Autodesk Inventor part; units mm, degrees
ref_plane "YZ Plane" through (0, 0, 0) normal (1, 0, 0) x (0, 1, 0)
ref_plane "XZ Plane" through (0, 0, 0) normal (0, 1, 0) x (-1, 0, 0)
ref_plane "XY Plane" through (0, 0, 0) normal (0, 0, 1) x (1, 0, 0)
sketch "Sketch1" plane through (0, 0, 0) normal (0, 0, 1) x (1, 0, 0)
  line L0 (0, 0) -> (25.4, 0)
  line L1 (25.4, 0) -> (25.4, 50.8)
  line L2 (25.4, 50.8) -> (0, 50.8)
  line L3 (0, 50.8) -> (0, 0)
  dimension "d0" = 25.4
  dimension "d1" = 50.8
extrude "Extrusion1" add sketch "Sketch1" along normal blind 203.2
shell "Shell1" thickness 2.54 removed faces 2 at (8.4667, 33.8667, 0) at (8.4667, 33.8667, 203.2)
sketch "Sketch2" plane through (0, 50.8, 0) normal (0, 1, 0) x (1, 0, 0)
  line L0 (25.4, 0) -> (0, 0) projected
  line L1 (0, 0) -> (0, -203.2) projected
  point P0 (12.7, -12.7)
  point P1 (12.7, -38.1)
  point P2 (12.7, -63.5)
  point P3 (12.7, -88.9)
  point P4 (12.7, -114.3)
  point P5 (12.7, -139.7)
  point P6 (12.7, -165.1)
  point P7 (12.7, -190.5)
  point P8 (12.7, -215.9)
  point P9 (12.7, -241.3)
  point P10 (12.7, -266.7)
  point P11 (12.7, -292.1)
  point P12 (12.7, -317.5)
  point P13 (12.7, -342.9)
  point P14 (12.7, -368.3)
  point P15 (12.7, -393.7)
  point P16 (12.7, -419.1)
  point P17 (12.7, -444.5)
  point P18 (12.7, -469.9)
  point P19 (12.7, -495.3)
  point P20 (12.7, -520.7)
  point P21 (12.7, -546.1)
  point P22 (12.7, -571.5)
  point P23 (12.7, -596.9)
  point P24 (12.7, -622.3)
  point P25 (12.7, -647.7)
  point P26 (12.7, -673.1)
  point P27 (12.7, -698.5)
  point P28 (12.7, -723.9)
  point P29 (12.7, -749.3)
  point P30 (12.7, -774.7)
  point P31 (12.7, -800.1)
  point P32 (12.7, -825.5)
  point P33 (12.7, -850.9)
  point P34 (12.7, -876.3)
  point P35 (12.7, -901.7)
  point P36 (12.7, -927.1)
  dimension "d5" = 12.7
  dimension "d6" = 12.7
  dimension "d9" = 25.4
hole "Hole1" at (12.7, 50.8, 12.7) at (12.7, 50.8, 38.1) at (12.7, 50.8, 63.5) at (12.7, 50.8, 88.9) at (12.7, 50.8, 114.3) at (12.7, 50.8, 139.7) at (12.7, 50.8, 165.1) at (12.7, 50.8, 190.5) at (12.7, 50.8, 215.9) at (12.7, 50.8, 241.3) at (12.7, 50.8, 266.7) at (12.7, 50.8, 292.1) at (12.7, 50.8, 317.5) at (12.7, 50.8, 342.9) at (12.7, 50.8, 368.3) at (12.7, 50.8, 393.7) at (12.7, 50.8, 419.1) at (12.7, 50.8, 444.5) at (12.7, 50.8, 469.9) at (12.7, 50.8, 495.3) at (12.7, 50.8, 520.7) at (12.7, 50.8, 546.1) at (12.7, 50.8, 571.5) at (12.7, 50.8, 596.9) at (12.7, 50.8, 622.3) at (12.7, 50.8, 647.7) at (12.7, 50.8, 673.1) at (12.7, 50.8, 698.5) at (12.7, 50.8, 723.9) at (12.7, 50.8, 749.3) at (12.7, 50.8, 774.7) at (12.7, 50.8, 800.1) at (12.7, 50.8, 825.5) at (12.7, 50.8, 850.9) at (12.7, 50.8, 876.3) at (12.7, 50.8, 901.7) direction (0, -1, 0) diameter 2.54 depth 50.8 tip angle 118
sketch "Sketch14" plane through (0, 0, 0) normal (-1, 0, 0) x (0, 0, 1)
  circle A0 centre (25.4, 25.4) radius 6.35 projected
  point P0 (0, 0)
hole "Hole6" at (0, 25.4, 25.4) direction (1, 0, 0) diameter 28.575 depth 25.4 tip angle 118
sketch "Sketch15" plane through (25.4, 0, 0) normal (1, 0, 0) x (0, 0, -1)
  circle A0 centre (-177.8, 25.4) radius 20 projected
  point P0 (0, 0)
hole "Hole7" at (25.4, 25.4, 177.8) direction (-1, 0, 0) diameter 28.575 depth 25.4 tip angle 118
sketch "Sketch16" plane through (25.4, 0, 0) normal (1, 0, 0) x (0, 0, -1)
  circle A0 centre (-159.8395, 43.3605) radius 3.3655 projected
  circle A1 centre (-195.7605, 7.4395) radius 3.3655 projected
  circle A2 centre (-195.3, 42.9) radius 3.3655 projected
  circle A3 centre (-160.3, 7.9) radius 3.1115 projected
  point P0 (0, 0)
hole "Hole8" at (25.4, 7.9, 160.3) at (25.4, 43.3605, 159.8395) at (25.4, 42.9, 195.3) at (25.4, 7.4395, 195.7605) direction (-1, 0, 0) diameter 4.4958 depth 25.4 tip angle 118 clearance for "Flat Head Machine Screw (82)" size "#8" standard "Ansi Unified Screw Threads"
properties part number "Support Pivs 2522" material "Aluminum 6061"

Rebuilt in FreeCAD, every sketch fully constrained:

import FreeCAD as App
import Part
import Sketcher
Q = App.Units.Quantity


def faces_at(feature, points):
    """Names of the faces that lie closest to the given points."""
    faces = feature.Shape.Faces
    near = lambda p: min(range(len(faces)), key=lambda i: faces[i].distToShape(Part.Vertex(*p))[0])
    return sorted({f"Face{near(p) + 1}" for p in points})


def add_polygon(sketch, points):
    """Adds a closed chain of lines whose ends are joined by coincident constraints."""
    first, n = sketch.GeometryCount, len(points)
    for a, b in zip(points, points[1:] + points[:1]):
        sketch.addGeometry(Part.LineSegment(App.Vector(*a, 0), App.Vector(*b, 0)), False)
    for i in range(n):
        sketch.addConstraint(Sketcher.Constraint("Coincident", first + i, 2, first + (i + 1) % n, 1))

doc = App.newDocument("Part")
body = doc.addObject("PartDesign::Body", "Body")

sketch1 = body.newObject("Sketcher::SketchObject", "Sketch")
sketch1.AttachmentSupport = (doc.getObject("XY_Plane"), [""])
sketch1.MapMode = "FlatFace"
add_polygon(sketch1, [(0, 51), (0, 0), (25, 0), (25, 51)])
sketch1.addConstraint([
    Sketcher.Constraint("Vertical", 0),
    Sketcher.Constraint("Horizontal", 1),
    Sketcher.Constraint("Vertical", 2),
    Sketcher.Constraint("Horizontal", 3),
    Sketcher.Constraint("Coincident", 0, 2, -1, 1),
    Sketcher.Constraint("DistanceX", 1, 1, 1, 2, Q("1 in")),
    Sketcher.Constraint("DistanceY", 0, 2, 0, 1, Q("2 in")),
])
pad1 = body.newObject("PartDesign::Pad", "Pad")
pad1.Profile = sketch1
pad1.Length = Q("8 in")
doc.recompute()

thickness = body.newObject("PartDesign::Thickness", "Thickness")
thickness.Base = (pad1, faces_at(pad1, [(8.467, 33.867, 0), (8.467, 33.867, 203.2)]))
thickness.Value = Q("0.1 in")
thickness.Reversed = True
thickness.Join = "Intersection"

sketch2 = body.newObject("Sketcher::SketchObject", "Sketch001")
sketch2.AttachmentSupport = (doc.getObject("XZ_Plane"), [""])
sketch2.MapMode = "FlatFace"
sketch2.AttachmentOffset = App.Placement(App.Vector(0, 0, -2 * 25.4), App.Rotation())
sketch2.addGeometry([
    Part.Circle(App.Vector(12.7, 12.7, 0), App.Vector(0, 0, 1), 1.3),
    Part.Circle(App.Vector(12.7, 38.1, 0), App.Vector(0, 0, 1), 1.3),
    Part.Circle(App.Vector(12.7, 63.5, 0), App.Vector(0, 0, 1), 1.3),
    Part.Circle(App.Vector(12.7, 88.9, 0), App.Vector(0, 0, 1), 1.3),
    Part.Circle(App.Vector(12.7, 114.3, 0), App.Vector(0, 0, 1), 1.3),
    Part.Circle(App.Vector(12.7, 139.7, 0), App.Vector(0, 0, 1), 1.3),
    Part.Circle(App.Vector(12.7, 165.1, 0), App.Vector(0, 0, 1), 1.3),
    Part.Circle(App.Vector(12.7, 190.5, 0), App.Vector(0, 0, 1), 1.3),
    Part.Circle(App.Vector(12.7, 215.9, 0), App.Vector(0, 0, 1), 1.3),
    Part.Circle(App.Vector(12.7, 241.3, 0), App.Vector(0, 0, 1), 1.3),
    Part.Circle(App.Vector(12.7, 266.7, 0), App.Vector(0, 0, 1), 1.3),
    Part.Circle(App.Vector(12.7, 292.1, 0), App.Vector(0, 0, 1), 1.3),
    Part.Circle(App.Vector(12.7, 317.5, 0), App.Vector(0, 0, 1), 1.3),
    Part.Circle(App.Vector(12.7, 342.9, 0), App.Vector(0, 0, 1), 1.3),
    Part.Circle(App.Vector(12.7, 368.3, 0), App.Vector(0, 0, 1), 1.3),
    Part.Circle(App.Vector(12.7, 393.7, 0), App.Vector(0, 0, 1), 1.3),
    Part.Circle(App.Vector(12.7, 419.1, 0), App.Vector(0, 0, 1), 1.3),
    Part.Circle(App.Vector(12.7, 444.5, 0), App.Vector(0, 0, 1), 1.3),
    Part.Circle(App.Vector(12.7, 469.9, 0), App.Vector(0, 0, 1), 1.3),
    Part.Circle(App.Vector(12.7, 495.3, 0), App.Vector(0, 0, 1), 1.3),
    Part.Circle(App.Vector(12.7, 520.7, 0), App.Vector(0, 0, 1), 1.3),
    Part.Circle(App.Vector(12.7, 546.1, 0), App.Vector(0, 0, 1), 1.3),
    Part.Circle(App.Vector(12.7, 571.5, 0), App.Vector(0, 0, 1), 1.3),
    Part.Circle(App.Vector(12.7, 596.9, 0), App.Vector(0, 0, 1), 1.3),
    Part.Circle(App.Vector(12.7, 622.3, 0), App.Vector(0, 0, 1), 1.3),
    Part.Circle(App.Vector(12.7, 647.7, 0), App.Vector(0, 0, 1), 1.3),
    Part.Circle(App.Vector(12.7, 673.1, 0), App.Vector(0, 0, 1), 1.3),
    Part.Circle(App.Vector(12.7, 698.5, 0), App.Vector(0, 0, 1), 1.3),
    Part.Circle(App.Vector(12.7, 723.9, 0), App.Vector(0, 0, 1), 1.3),
    Part.Circle(App.Vector(12.7, 749.3, 0), App.Vector(0, 0, 1), 1.3),
    Part.Circle(App.Vector(12.7, 774.7, 0), App.Vector(0, 0, 1), 1.3),
    Part.Circle(App.Vector(12.7, 800.1, 0), App.Vector(0, 0, 1), 1.3),
    Part.Circle(App.Vector(12.7, 825.5, 0), App.Vector(0, 0, 1), 1.3),
    Part.Circle(App.Vector(12.7, 850.9, 0), App.Vector(0, 0, 1), 1.3),
    Part.Circle(App.Vector(12.7, 876.3, 0), App.Vector(0, 0, 1), 1.3),
    Part.Circle(App.Vector(12.7, 901.7, 0), App.Vector(0, 0, 1), 1.3),
], False)
sketch2.addConstraint([
    Sketcher.Constraint("Equal", 0, 1),
    Sketcher.Constraint("Equal", 1, 2),
    Sketcher.Constraint("Equal", 2, 3),
    Sketcher.Constraint("Equal", 3, 4),
    Sketcher.Constraint("Equal", 4, 5),
    Sketcher.Constraint("Equal", 5, 6),
    Sketcher.Constraint("Equal", 6, 7),
    Sketcher.Constraint("Equal", 7, 8),
    Sketcher.Constraint("Equal", 8, 9),
    Sketcher.Constraint("Equal", 9, 10),
    Sketcher.Constraint("Equal", 10, 11),
    Sketcher.Constraint("Equal", 11, 12),
    Sketcher.Constraint("Equal", 12, 13),
    Sketcher.Constraint("Equal", 13, 14),
    Sketcher.Constraint("Equal", 14, 15),
    Sketcher.Constraint("Equal", 15, 16),
    Sketcher.Constraint("Equal", 16, 17),
    Sketcher.Constraint("Equal", 17, 18),
    Sketcher.Constraint("Equal", 18, 19),
    Sketcher.Constraint("Equal", 19, 20),
    Sketcher.Constraint("Equal", 20, 21),
    Sketcher.Constraint("Equal", 21, 22),
    Sketcher.Constraint("Equal", 22, 23),
    Sketcher.Constraint("Equal", 23, 24),
    Sketcher.Constraint("Equal", 24, 25),
    Sketcher.Constraint("Equal", 25, 26),
    Sketcher.Constraint("Equal", 26, 27),
    Sketcher.Constraint("Equal", 27, 28),
    Sketcher.Constraint("Equal", 28, 29),
    Sketcher.Constraint("Equal", 29, 30),
    Sketcher.Constraint("Equal", 30, 31),
    Sketcher.Constraint("Equal", 31, 32),
    Sketcher.Constraint("Equal", 32, 33),
    Sketcher.Constraint("Equal", 33, 34),
    Sketcher.Constraint("Equal", 34, 35),
    Sketcher.Constraint("Vertical", 0, 3, 1, 3),
    Sketcher.Constraint("Vertical", 1, 3, 2, 3),
    Sketcher.Constraint("Vertical", 2, 3, 3, 3),
    Sketcher.Constraint("Vertical", 3, 3, 4, 3),
    Sketcher.Constraint("Vertical", 4, 3, 5, 3),
    Sketcher.Constraint("Vertical", 5, 3, 6, 3),
    Sketcher.Constraint("Vertical", 6, 3, 7, 3),
    Sketcher.Constraint("Vertical", 7, 3, 8, 3),
    Sketcher.Constraint("Vertical", 8, 3, 9, 3),
    Sketcher.Constraint("Vertical", 9, 3, 10, 3),
    Sketcher.Constraint("Vertical", 10, 3, 11, 3),
    Sketcher.Constraint("Vertical", 11, 3, 12, 3),
    Sketcher.Constraint("Vertical", 12, 3, 13, 3),
    Sketcher.Constraint("Vertical", 13, 3, 14, 3),
    Sketcher.Constraint("Vertical", 14, 3, 15, 3),
    Sketcher.Constraint("Vertical", 15, 3, 16, 3),
    Sketcher.Constraint("Vertical", 16, 3, 17, 3),
    Sketcher.Constraint("Vertical", 17, 3, 18, 3),
    Sketcher.Constraint("Vertical", 18, 3, 19, 3),
    Sketcher.Constraint("Vertical", 19, 3, 20, 3),
    Sketcher.Constraint("Vertical", 20, 3, 21, 3),
    Sketcher.Constraint("Vertical", 21, 3, 22, 3),
    Sketcher.Constraint("Vertical", 22, 3, 23, 3),
    Sketcher.Constraint("Vertical", 23, 3, 24, 3),
    Sketcher.Constraint("Vertical", 24, 3, 25, 3),
    Sketcher.Constraint("Vertical", 25, 3, 26, 3),
    Sketcher.Constraint("Vertical", 26, 3, 27, 3),
    Sketcher.Constraint("Vertical", 27, 3, 28, 3),
    Sketcher.Constraint("Vertical", 28, 3, 29, 3),
    Sketcher.Constraint("Vertical", 29, 3, 30, 3),
    Sketcher.Constraint("Vertical", 30, 3, 31, 3),
    Sketcher.Constraint("Vertical", 31, 3, 32, 3),
    Sketcher.Constraint("Vertical", 32, 3, 33, 3),
    Sketcher.Constraint("Vertical", 33, 3, 34, 3),
    Sketcher.Constraint("Vertical", 34, 3, 35, 3),
    Sketcher.Constraint("Diameter", 0, Q("0.1 in")),
    Sketcher.Constraint("DistanceY", 0, 3, 1, 3, Q("1 in")),
    Sketcher.Constraint("DistanceY", 1, 3, 2, 3, Q("1 in")),
    Sketcher.Constraint("DistanceY", 2, 3, 3, 3, Q("1 in")),
    Sketcher.Constraint("DistanceY", 3, 3, 4, 3, Q("1 in")),
    Sketcher.Constraint("DistanceY", 4, 3, 5, 3, Q("1 in")),
    Sketcher.Constraint("DistanceY", 5, 3, 6, 3, Q("1 in")),
    Sketcher.Constraint("DistanceY", 6, 3, 7, 3, Q("1 in")),
    Sketcher.Constraint("DistanceY", 7, 3, 8, 3, Q("1 in")),
    Sketcher.Constraint("DistanceY", 8, 3, 9, 3, Q("1 in")),
    Sketcher.Constraint("DistanceY", 9, 3, 10, 3, Q("1 in")),
    Sketcher.Constraint("DistanceY", 10, 3, 11, 3, Q("1 in")),
    Sketcher.Constraint("DistanceY", 11, 3, 12, 3, Q("1 in")),
    Sketcher.Constraint("DistanceY", 12, 3, 13, 3, Q("1 in")),
    Sketcher.Constraint("DistanceY", 13, 3, 14, 3, Q("1 in")),
    Sketcher.Constraint("DistanceY", 14, 3, 15, 3, Q("1 in")),
    Sketcher.Constraint("DistanceY", 15, 3, 16, 3, Q("1 in")),
    Sketcher.Constraint("DistanceY", 16, 3, 17, 3, Q("1 in")),
    Sketcher.Constraint("DistanceY", 17, 3, 18, 3, Q("1 in")),
    Sketcher.Constraint("DistanceY", 18, 3, 19, 3, Q("1 in")),
    Sketcher.Constraint("DistanceY", 19, 3, 20, 3, Q("1 in")),
    Sketcher.Constraint("DistanceY", 20, 3, 21, 3, Q("1 in")),
    Sketcher.Constraint("DistanceY", 21, 3, 22, 3, Q("1 in")),
    Sketcher.Constraint("DistanceY", 22, 3, 23, 3, Q("1 in")),
    Sketcher.Constraint("DistanceY", 23, 3, 24, 3, Q("1 in")),
    Sketcher.Constraint("DistanceY", 24, 3, 25, 3, Q("1 in")),
    Sketcher.Constraint("DistanceY", 25, 3, 26, 3, Q("1 in")),
    Sketcher.Constraint("DistanceY", 26, 3, 27, 3, Q("1 in")),
    Sketcher.Constraint("DistanceY", 27, 3, 28, 3, Q("1 in")),
    Sketcher.Constraint("DistanceY", 28, 3, 29, 3, Q("1 in")),
    Sketcher.Constraint("DistanceY", 29, 3, 30, 3, Q("1 in")),
    Sketcher.Constraint("DistanceY", 30, 3, 31, 3, Q("1 in")),
    Sketcher.Constraint("DistanceY", 31, 3, 32, 3, Q("1 in")),
    Sketcher.Constraint("DistanceY", 32, 3, 33, 3, Q("1 in")),
    Sketcher.Constraint("DistanceY", 33, 3, 34, 3, Q("1 in")),
    Sketcher.Constraint("DistanceY", 34, 3, 35, 3, Q("1 in")),
    Sketcher.Constraint("DistanceX", -1, 1, 0, 3, Q("0.5 in")),
    Sketcher.Constraint("DistanceY", -1, 1, 0, 3, Q("0.5 in")),
])
doc.recompute()
hole = body.newObject("PartDesign::Hole", "Hole")
hole.Profile = sketch2
hole.ThreadType = "None"
hole.Diameter = Q("0.1 in")
hole.DepthType = "Dimension"
hole.Depth = Q("2 in")
hole.DrillPoint = "Angled"
hole.DrillPointAngle = 118
hole.Reversed = True

sketch3 = body.newObject("Sketcher::SketchObject", "Sketch002")
sketch3.AttachmentSupport = (doc.getObject("YZ_Plane"), [""])
sketch3.MapMode = "FlatFace"
sketch3.addGeometry(Part.Circle(App.Vector(25, 25, 0), App.Vector(0, 0, 1), 14), False)
sketch3.addConstraint([
    Sketcher.Constraint("Diameter", 0, Q("1.125 in")),
    Sketcher.Constraint("DistanceX", -1, 1, 0, 3, Q("1 in")),
    Sketcher.Constraint("DistanceY", -1, 1, 0, 3, Q("1 in")),
])
doc.recompute()
hole2 = body.newObject("PartDesign::Hole", "Hole001")
hole2.Profile = sketch3
hole2.ThreadType = "None"
hole2.Diameter = Q("1.125 in")
hole2.DepthType = "Dimension"
hole2.Depth = Q("1 in")
hole2.DrillPoint = "Angled"
hole2.DrillPointAngle = 118
hole2.Reversed = True

sketch4 = body.newObject("Sketcher::SketchObject", "Sketch003")
sketch4.AttachmentSupport = (doc.getObject("YZ_Plane"), [""])
sketch4.MapMode = "FlatFace"
sketch4.AttachmentOffset = App.Placement(App.Vector(0, 0, 1 * 25.4), App.Rotation())
sketch4.addGeometry(Part.Circle(App.Vector(25, 178, 0), App.Vector(0, 0, 1), 14), False)
sketch4.addConstraint([
    Sketcher.Constraint("Diameter", 0, Q("1.125 in")),
    Sketcher.Constraint("DistanceX", -1, 1, 0, 3, Q("1 in")),
    Sketcher.Constraint("DistanceY", -1, 1, 0, 3, Q("7 in")),
])
doc.recompute()
hole3 = body.newObject("PartDesign::Hole", "Hole002")
hole3.Profile = sketch4
hole3.ThreadType = "None"
hole3.Diameter = Q("1.125 in")
hole3.DepthType = "Dimension"
hole3.Depth = Q("1 in")
hole3.DrillPoint = "Angled"
hole3.DrillPointAngle = 118

sketch5 = body.newObject("Sketcher::SketchObject", "Sketch004")
sketch5.AttachmentSupport = (doc.getObject("YZ_Plane"), [""])
sketch5.MapMode = "FlatFace"
sketch5.AttachmentOffset = App.Placement(App.Vector(0, 0, 1 * 25.4), App.Rotation())
sketch5.addGeometry([
    Part.Circle(App.Vector(7.9, 160.3, 0), App.Vector(0, 0, 1), 2.2),
    Part.Circle(App.Vector(43.4, 159.8, 0), App.Vector(0, 0, 1), 2.2),
    Part.Circle(App.Vector(42.9, 195.3, 0), App.Vector(0, 0, 1), 2.2),
    Part.Circle(App.Vector(7.4, 195.8, 0), App.Vector(0, 0, 1), 2.2),
], False)
sketch5.addConstraint([
    Sketcher.Constraint("Equal", 0, 1),
    Sketcher.Constraint("Equal", 1, 2),
    Sketcher.Constraint("Equal", 2, 3),
    Sketcher.Constraint("Diameter", 0, Q("0.177 in")),
    Sketcher.Constraint("DistanceX", -1, 1, 1, 3, Q("1.7071 in")),
    Sketcher.Constraint("DistanceY", -1, 1, 1, 3, Q("6.2929 in")),
    Sketcher.Constraint("DistanceX", -1, 1, 3, 3, Q("0.2929 in")),
    Sketcher.Constraint("DistanceY", -1, 1, 3, 3, Q("7.7071 in")),
    Sketcher.Constraint("DistanceX", -1, 1, 0, 3, Q("7.9 mm")),
    Sketcher.Constraint("DistanceY", -1, 1, 0, 3, Q("160.3 mm")),
    Sketcher.Constraint("DistanceX", -1, 1, 2, 3, Q("42.9 mm")),
    Sketcher.Constraint("DistanceY", -1, 1, 2, 3, Q("195.3 mm")),
])
doc.recompute()
hole4 = body.newObject("PartDesign::Hole", "Hole003")
hole4.Profile = sketch5
hole4.ThreadType = "None"
hole4.Diameter = Q("0.177 in")
hole4.DepthType = "Dimension"
hole4.Depth = Q("1 in")
hole4.DrillPoint = "Angled"
hole4.DrillPointAngle = 118

doc.recompute()
